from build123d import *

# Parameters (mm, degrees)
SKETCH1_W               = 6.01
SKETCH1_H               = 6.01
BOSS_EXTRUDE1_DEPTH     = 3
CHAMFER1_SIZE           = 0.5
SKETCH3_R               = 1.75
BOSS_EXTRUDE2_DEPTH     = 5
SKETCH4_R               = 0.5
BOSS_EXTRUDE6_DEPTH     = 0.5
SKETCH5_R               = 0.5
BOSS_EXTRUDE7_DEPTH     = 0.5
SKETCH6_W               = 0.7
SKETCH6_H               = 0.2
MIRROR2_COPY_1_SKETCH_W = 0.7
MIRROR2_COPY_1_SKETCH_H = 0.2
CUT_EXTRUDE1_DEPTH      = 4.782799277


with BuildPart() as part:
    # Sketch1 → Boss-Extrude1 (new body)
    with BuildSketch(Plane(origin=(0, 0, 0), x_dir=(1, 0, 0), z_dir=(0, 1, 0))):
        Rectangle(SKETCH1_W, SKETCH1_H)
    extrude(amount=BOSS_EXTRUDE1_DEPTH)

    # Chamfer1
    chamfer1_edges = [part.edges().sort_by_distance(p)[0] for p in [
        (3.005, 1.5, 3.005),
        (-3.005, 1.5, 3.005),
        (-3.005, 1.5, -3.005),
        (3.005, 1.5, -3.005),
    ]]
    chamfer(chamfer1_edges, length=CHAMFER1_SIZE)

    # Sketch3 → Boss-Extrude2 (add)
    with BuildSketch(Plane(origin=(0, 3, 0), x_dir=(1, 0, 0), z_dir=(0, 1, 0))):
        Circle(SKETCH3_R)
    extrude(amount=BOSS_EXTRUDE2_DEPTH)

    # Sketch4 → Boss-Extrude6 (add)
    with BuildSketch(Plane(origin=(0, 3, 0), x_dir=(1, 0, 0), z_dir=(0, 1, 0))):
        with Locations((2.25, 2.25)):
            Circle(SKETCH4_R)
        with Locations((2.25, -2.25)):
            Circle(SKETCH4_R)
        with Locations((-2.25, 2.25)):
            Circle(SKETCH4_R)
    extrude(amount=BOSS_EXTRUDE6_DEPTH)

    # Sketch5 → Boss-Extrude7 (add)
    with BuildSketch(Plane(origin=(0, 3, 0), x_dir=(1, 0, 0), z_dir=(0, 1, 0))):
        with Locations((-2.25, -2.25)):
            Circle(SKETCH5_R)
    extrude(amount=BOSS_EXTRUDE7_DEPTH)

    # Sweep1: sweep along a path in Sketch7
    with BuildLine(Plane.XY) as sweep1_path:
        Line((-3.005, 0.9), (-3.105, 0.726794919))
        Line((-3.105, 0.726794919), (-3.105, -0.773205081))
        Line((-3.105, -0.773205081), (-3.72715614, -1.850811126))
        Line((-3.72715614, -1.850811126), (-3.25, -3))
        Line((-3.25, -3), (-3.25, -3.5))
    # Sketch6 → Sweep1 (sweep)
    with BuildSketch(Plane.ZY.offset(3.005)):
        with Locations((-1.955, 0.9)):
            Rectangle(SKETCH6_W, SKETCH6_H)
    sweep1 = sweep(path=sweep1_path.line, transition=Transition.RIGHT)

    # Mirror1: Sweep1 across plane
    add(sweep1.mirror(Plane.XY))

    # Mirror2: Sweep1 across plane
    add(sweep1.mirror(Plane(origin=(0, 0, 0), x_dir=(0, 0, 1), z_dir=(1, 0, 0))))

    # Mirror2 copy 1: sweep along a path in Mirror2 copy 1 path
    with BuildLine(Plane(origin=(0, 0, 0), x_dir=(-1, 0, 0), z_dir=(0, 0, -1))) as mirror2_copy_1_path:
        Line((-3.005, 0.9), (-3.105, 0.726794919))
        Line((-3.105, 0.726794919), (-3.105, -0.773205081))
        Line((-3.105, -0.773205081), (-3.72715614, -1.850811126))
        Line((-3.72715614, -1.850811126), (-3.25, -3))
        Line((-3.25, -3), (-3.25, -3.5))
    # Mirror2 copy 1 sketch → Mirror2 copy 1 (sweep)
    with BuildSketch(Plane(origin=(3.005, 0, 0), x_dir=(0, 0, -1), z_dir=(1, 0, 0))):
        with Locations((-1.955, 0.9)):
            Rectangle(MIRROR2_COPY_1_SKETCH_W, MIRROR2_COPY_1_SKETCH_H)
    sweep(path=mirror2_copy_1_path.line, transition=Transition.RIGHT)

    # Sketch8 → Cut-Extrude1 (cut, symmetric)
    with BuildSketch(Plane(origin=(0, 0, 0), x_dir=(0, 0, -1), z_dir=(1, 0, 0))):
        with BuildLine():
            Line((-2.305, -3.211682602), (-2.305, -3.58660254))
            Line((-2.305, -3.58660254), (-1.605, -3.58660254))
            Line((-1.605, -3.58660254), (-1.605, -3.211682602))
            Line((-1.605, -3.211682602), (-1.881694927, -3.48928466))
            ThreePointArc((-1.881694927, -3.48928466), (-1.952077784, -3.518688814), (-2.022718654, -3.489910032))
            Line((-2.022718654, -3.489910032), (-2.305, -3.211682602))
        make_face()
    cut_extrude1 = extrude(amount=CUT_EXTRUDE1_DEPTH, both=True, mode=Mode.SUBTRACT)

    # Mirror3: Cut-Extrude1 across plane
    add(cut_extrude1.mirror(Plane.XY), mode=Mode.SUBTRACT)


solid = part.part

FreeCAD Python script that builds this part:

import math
import FreeCAD as App
import Part
import Sketcher
Q = App.Units.Quantity


def edges_at(feature, points):
    """Names of the edges that pass closest to the given points."""
    edges = feature.Shape.Edges
    near = lambda p: min(range(len(edges)), key=lambda i: edges[i].distToShape(Part.Vertex(*p))[0])
    return sorted({f"Edge{near(p) + 1}" for p in points})

doc = App.newDocument("Part")
body = doc.addObject("PartDesign::Body", "Body")

# Sketch on XZ plane
sketch1 = body.newObject("Sketcher::SketchObject", "Sketch")
sketch1.AttachmentSupport = (doc.getObject("XZ_Plane"), [""])
sketch1.MapMode = "FlatFace"
sketch1.addGeometry(Part.LineSegment(App.Vector(-3.005, -3.005, 0), App.Vector(-3.005, 3.005, 0)), False)
sketch1.addGeometry(Part.LineSegment(App.Vector(-3.005, 3.005, 0), App.Vector(3.005, 3.005, 0)), False)
sketch1.addGeometry(Part.LineSegment(App.Vector(3.005, 3.005, 0), App.Vector(3.005, -3.005, 0)), False)
sketch1.addGeometry(Part.LineSegment(App.Vector(3.005, -3.005, 0), App.Vector(-3.005, -3.005, 0)), False)
sketch1.addConstraint(Sketcher.Constraint("Coincident", 0, 2, 1, 1))
sketch1.addConstraint(Sketcher.Constraint("Coincident", 1, 2, 2, 1))
sketch1.addConstraint(Sketcher.Constraint("Coincident", 2, 2, 3, 1))
sketch1.addConstraint(Sketcher.Constraint("Coincident", 3, 2, 0, 1))
sketch1.addConstraint(Sketcher.Constraint("Vertical", 0))
sketch1.addConstraint(Sketcher.Constraint("Horizontal", 1))
sketch1.addConstraint(Sketcher.Constraint("Vertical", 2))
sketch1.addConstraint(Sketcher.Constraint("Horizontal", 3))
sketch1.addConstraint(Sketcher.Constraint("Symmetric", 0, 2, 2, 2, -1, 1))
sketch1.addConstraint(Sketcher.Constraint("Equal", 3, 0))
sketch1.addConstraint(Sketcher.Constraint("DistanceX", 1, 1, 1, 2, 6.01))
pad1 = body.newObject("PartDesign::Pad", "Pad")
pad1.Profile = sketch1
pad1.Length = 3
pad1.Reversed = True
doc.recompute()

chamfer = body.newObject("PartDesign::Chamfer", "Chamfer")
chamfer.Base = (pad1, edges_at(pad1, [
    (3.005, 1.5, 3.005),
    (-3.005, 1.5, 3.005),
    (-3.005, 1.5, -3.005),
    (3.005, 1.5, -3.005),
]))
chamfer.Size = 0.5

# Sketch on XZ plane
sketch2 = body.newObject("Sketcher::SketchObject", "Sketch001")
sketch2.AttachmentSupport = (doc.getObject("XZ_Plane"), [""])
sketch2.MapMode = "FlatFace"
sketch2.AttachmentOffset = App.Placement(App.Vector(0, 0, -3), App.Rotation())
sketch2.addGeometry(Part.Circle(App.Vector(0, 0, 0), App.Vector(0, 0, 1), 1.75), False)
sketch2.addConstraint(Sketcher.Constraint("Coincident", 0, 3, -1, 1))
sketch2.addConstraint(Sketcher.Constraint("Diameter", 0, 3.5))
pad2 = body.newObject("PartDesign::Pad", "Pad001")
pad2.Profile = sketch2
pad2.Length = 5
pad2.Reversed = True

# Sketch on XZ plane
sketch3 = body.newObject("Sketcher::SketchObject", "Sketch002")
sketch3.AttachmentSupport = (doc.getObject("XZ_Plane"), [""])
sketch3.MapMode = "FlatFace"
sketch3.AttachmentOffset = App.Placement(App.Vector(0, 0, -3), App.Rotation())
sketch3.addGeometry(Part.Circle(App.Vector(2.25, -2.25, 0), App.Vector(0, 0, 1), 0.5), False)
sketch3.addGeometry(Part.Circle(App.Vector(2.25, 2.25, 0), App.Vector(0, 0, 1), 0.5), False)
sketch3.addGeometry(Part.Circle(App.Vector(-2.25, -2.25, 0), App.Vector(0, 0, 1), 0.5), False)
sketch3.addConstraint(Sketcher.Constraint("Equal", 0, 1))
sketch3.addConstraint(Sketcher.Constraint("Equal", 1, 2))
sketch3.addConstraint(Sketcher.Constraint("Symmetric", 1, 3, 2, 3, -1, 1))
sketch3.addConstraint(Sketcher.Constraint("Symmetric", 0, 3, 2, 3, -2))
sketch3.addConstraint(Sketcher.Constraint("Diameter", 0, 1.0))
sketch3.addConstraint(Sketcher.Constraint("DistanceY", 0, 3, 1, 3, 4.5))
sketch3.addConstraint(Sketcher.Constraint("DistanceX", 2, 3, 0, 3, 4.5))
pad3 = body.newObject("PartDesign::Pad", "Pad002")
pad3.Profile = sketch3
pad3.Length = 0.5
pad3.Reversed = True

# Sketch on XZ plane
sketch4 = body.newObject("Sketcher::SketchObject", "Sketch003")
sketch4.AttachmentSupport = (doc.getObject("XZ_Plane"), [""])
sketch4.MapMode = "FlatFace"
sketch4.AttachmentOffset = App.Placement(App.Vector(0, 0, -3), App.Rotation())
sketch4.addGeometry(Part.Circle(App.Vector(-2.25, 2.25, 0), App.Vector(0, 0, 1), 0.5), False)
sketch4.addConstraint(Sketcher.Constraint("Diameter", 0, 1.0))
sketch4.addConstraint(Sketcher.Constraint("DistanceX", 0, 3, -1, 1, 2.25))
sketch4.addConstraint(Sketcher.Constraint("DistanceY", -1, 1, 0, 3, 2.25))
pad4 = body.newObject("PartDesign::Pad", "Pad003")
pad4.Profile = sketch4
pad4.Length = 0.5
pad4.Reversed = True

# Sketch on YZ plane
sketch5 = body.newObject("Sketcher::SketchObject", "Sketch004")
sketch5.AttachmentSupport = (doc.getObject("YZ_Plane"), [""])
sketch5.MapMode = "FlatFace"
sketch5.AttachmentOffset = App.Placement(App.Vector(0, 0, -3.005), App.Rotation())
sketch5.addGeometry(Part.LineSegment(App.Vector(1, -2.305, 0), App.Vector(0.8, -2.305, 0)), False)
sketch5.addGeometry(Part.LineSegment(App.Vector(0.8, -2.305, 0), App.Vector(0.8, -1.605, 0)), False)
sketch5.addGeometry(Part.LineSegment(App.Vector(0.8, -1.605, 0), App.Vector(1, -1.605, 0)), False)
sketch5.addGeometry(Part.LineSegment(App.Vector(1, -1.605, 0), App.Vector(1, -2.305, 0)), False)
sketch5.addConstraint(Sketcher.Constraint("Coincident", 0, 2, 1, 1))
sketch5.addConstraint(Sketcher.Constraint("Coincident", 1, 2, 2, 1))
sketch5.addConstraint(Sketcher.Constraint("Coincident", 2, 2, 3, 1))
sketch5.addConstraint(Sketcher.Constraint("Coincident", 3, 2, 0, 1))
sketch5.addConstraint(Sketcher.Constraint("Horizontal", 0))
sketch5.addConstraint(Sketcher.Constraint("Vertical", 1))
sketch5.addConstraint(Sketcher.Constraint("Horizontal", 2))
sketch5.addConstraint(Sketcher.Constraint("Vertical", 3))
sketch5.addConstraint(Sketcher.Constraint("DistanceX", 0, 2, 0, 1, 0.2))
sketch5.addConstraint(Sketcher.Constraint("DistanceY", 1, 1, 1, 2, 0.7))
sketch5.addConstraint(Sketcher.Constraint("DistanceX", -1, 1, 2, 2, 1.0))
sketch5.addConstraint(Sketcher.Constraint("DistanceY", 0, 2, -1, 1, 2.305))

# Sketch on XY plane
sketch6 = body.newObject("Sketcher::SketchObject", "Sketch005")
sketch6.AttachmentSupport = (doc.getObject("XY_Plane"), [""])
sketch6.MapMode = "FlatFace"
sketch6.addGeometry(Part.LineSegment(App.Vector(-3.005, 0.9, 0), App.Vector(-3.105, 0.726795, 0)), False)
sketch6.addGeometry(Part.LineSegment(App.Vector(-3.105, 0.726795, 0), App.Vector(-3.105, -0.773205, 0)), False)
sketch6.addGeometry(Part.LineSegment(App.Vector(-3.105, -0.773205, 0), App.Vector(-3.727156, -1.850811, 0)), False)
sketch6.addGeometry(Part.LineSegment(App.Vector(-3.727156, -1.850811, 0), App.Vector(-3.25, -3, 0)), False)
sketch6.addGeometry(Part.LineSegment(App.Vector(-3.25, -3, 0), App.Vector(-3.25, -3.5, 0)), False)
sketch6.addConstraint(Sketcher.Constraint("Coincident", 0, 2, 1, 1))
sketch6.addConstraint(Sketcher.Constraint("Coincident", 1, 2, 2, 1))
sketch6.addConstraint(Sketcher.Constraint("Coincident", 2, 2, 3, 1))
sketch6.addConstraint(Sketcher.Constraint("Coincident", 3, 2, 4, 1))
sketch6.addConstraint(Sketcher.Constraint("Vertical", 1))
sketch6.addConstraint(Sketcher.Constraint("Vertical", 4))
sketch6.addConstraint(Sketcher.Constraint("Parallel", 0, 2))
sketch6.addConstraint(Sketcher.Constraint("Equal", 2, 3))
sketch6.addConstraint(Sketcher.Constraint("Angle", 0, Q("-120 deg")))
sketch6.addConstraint(Sketcher.Constraint("DistanceY", 1, 2, 1, 1, 1.5))
sketch6.addConstraint(Sketcher.Constraint("DistanceY", 4, 2, 4, 1, 0.5))
sketch6.addConstraint(Sketcher.Constraint("DistanceY", 3, 2, -1, 1, 3.0))
sketch6.addConstraint(Sketcher.Constraint("Distance", 0, 0.2))
sketch6.addConstraint(Sketcher.Constraint("DistanceY", -1, 1, 0, 1, 0.9))
sketch6.addConstraint(Sketcher.Constraint("DistanceX", 3, 2, -1, 1, 3.25))
sketch6.addConstraint(Sketcher.Constraint("DistanceX", 0, 1, -1, 1, 3.005))
doc.recompute()

additivepipe = body.newObject("PartDesign::AdditivePipe", "AdditivePipe")
additivepipe.Profile = sketch5
additivepipe.Spine = (sketch6, ["Edge1", "Edge2", "Edge3", "Edge4", "Edge5"])
additivepipe.Transition = "Right corner"
doc.recompute()

mirrored = body.newObject("PartDesign::Mirrored", "Mirrored")
mirrored.Originals = [additivepipe]
mirrored.MirrorPlane = (doc.getObject("XY_Plane"), [""])
body.Tip = mirrored
doc.recompute()

mirrored2 = body.newObject("PartDesign::Mirrored", "Mirrored001")
mirrored2.Originals = [additivepipe]
mirrored2.MirrorPlane = (doc.getObject("YZ_Plane"), [""])
body.Tip = mirrored2

# Sketch on YZ plane
sketch7 = body.newObject("Sketcher::SketchObject", "Sketch006")
sketch7.AttachmentSupport = (doc.getObject("YZ_Plane"), [""])
sketch7.MapMode = "FlatFace"
sketch7.AttachmentOffset = App.Placement(App.Vector(0, 0, 3.005), App.Rotation())
sketch7.addGeometry(Part.LineSegment(App.Vector(1, 2.305, 0), App.Vector(0.8, 2.305, 0)), False)
sketch7.addGeometry(Part.LineSegment(App.Vector(0.8, 2.305, 0), App.Vector(0.8, 1.605, 0)), False)
sketch7.addGeometry(Part.LineSegment(App.Vector(0.8, 1.605, 0), App.Vector(1, 1.605, 0)), False)
sketch7.addGeometry(Part.LineSegment(App.Vector(1, 1.605, 0), App.Vector(1, 2.305, 0)), False)
sketch7.addConstraint(Sketcher.Constraint("Coincident", 0, 2, 1, 1))
sketch7.addConstraint(Sketcher.Constraint("Coincident", 1, 2, 2, 1))
sketch7.addConstraint(Sketcher.Constraint("Coincident", 2, 2, 3, 1))
sketch7.addConstraint(Sketcher.Constraint("Coincident", 3, 2, 0, 1))
sketch7.addConstraint(Sketcher.Constraint("Horizontal", 0))
sketch7.addConstraint(Sketcher.Constraint("Vertical", 1))
sketch7.addConstraint(Sketcher.Constraint("Horizontal", 2))
sketch7.addConstraint(Sketcher.Constraint("Vertical", 3))
sketch7.addConstraint(Sketcher.Constraint("DistanceX", 0, 2, 0, 1, 0.2))
sketch7.addConstraint(Sketcher.Constraint("DistanceY", 1, 2, 1, 1, 0.7))
sketch7.addConstraint(Sketcher.Constraint("DistanceX", -1, 1, 2, 2, 1.0))
sketch7.addConstraint(Sketcher.Constraint("DistanceY", -1, 1, 0, 2, 2.305))

# Sketch on XY plane
sketch8 = body.newObject("Sketcher::SketchObject", "Sketch007")
sketch8.AttachmentSupport = (doc.getObject("XY_Plane"), [""])
sketch8.MapMode = "FlatFace"
sketch8.addGeometry(Part.LineSegment(App.Vector(3.005, 0.9, 0), App.Vector(3.105, 0.726795, 0)), False)
sketch8.addGeometry(Part.LineSegment(App.Vector(3.105, 0.726795, 0), App.Vector(3.105, -0.773205, 0)), False)
sketch8.addGeometry(Part.LineSegment(App.Vector(3.105, -0.773205, 0), App.Vector(3.727156, -1.850811, 0)), False)
sketch8.addGeometry(Part.LineSegment(App.Vector(3.727156, -1.850811, 0), App.Vector(3.25, -3, 0)), False)
sketch8.addGeometry(Part.LineSegment(App.Vector(3.25, -3, 0), App.Vector(3.25, -3.5, 0)), False)
sketch8.addConstraint(Sketcher.Constraint("Coincident", 0, 2, 1, 1))
sketch8.addConstraint(Sketcher.Constraint("Coincident", 1, 2, 2, 1))
sketch8.addConstraint(Sketcher.Constraint("Coincident", 2, 2, 3, 1))
sketch8.addConstraint(Sketcher.Constraint("Coincident", 3, 2, 4, 1))
sketch8.addConstraint(Sketcher.Constraint("Vertical", 1))
sketch8.addConstraint(Sketcher.Constraint("Vertical", 4))
sketch8.addConstraint(Sketcher.Constraint("Parallel", 0, 2))
sketch8.addConstraint(Sketcher.Constraint("Equal", 2, 3))
sketch8.addConstraint(Sketcher.Constraint("Angle", 0, Q("-60 deg")))
sketch8.addConstraint(Sketcher.Constraint("DistanceY", 1, 2, 1, 1, 1.5))
sketch8.addConstraint(Sketcher.Constraint("DistanceY", 4, 2, 4, 1, 0.5))
sketch8.addConstraint(Sketcher.Constraint("DistanceY", 3, 2, -1, 1, 3.0))
sketch8.addConstraint(Sketcher.Constraint("Distance", 0, 0.2))
sketch8.addConstraint(Sketcher.Constraint("DistanceY", -1, 1, 0, 1, 0.9))
sketch8.addConstraint(Sketcher.Constraint("DistanceX", -1, 1, 3, 2, 3.25))
sketch8.addConstraint(Sketcher.Constraint("DistanceX", -1, 1, 0, 1, 3.005))
doc.recompute()

additivepipe2 = body.newObject("PartDesign::AdditivePipe", "AdditivePipe001")
additivepipe2.Profile = sketch7
additivepipe2.Spine = (sketch8, ["Edge1", "Edge2", "Edge3", "Edge4", "Edge5"])
additivepipe2.Transition = "Right corner"

# Sketch on YZ plane
sketch9 = body.newObject("Sketcher::SketchObject", "Sketch008")
sketch9.AttachmentSupport = (doc.getObject("YZ_Plane"), [""])
sketch9.MapMode = "FlatFace"
sketch9.addGeometry(Part.LineSegment(App.Vector(-3.211683, 2.305, 0), App.Vector(-3.586603, 2.305, 0)), False)
sketch9.addGeometry(Part.LineSegment(App.Vector(-3.586603, 2.305, 0), App.Vector(-3.586603, 1.605, 0)), False)
sketch9.addGeometry(Part.LineSegment(App.Vector(-3.586603, 1.605, 0), App.Vector(-3.211683, 1.605, 0)), False)
sketch9.addGeometry(Part.LineSegment(App.Vector(-3.211683, 1.605, 0), App.Vector(-3.489285, 1.881695, 0)), False)
sketch9.addGeometry(Part.ArcOfCircle(Part.Circle(App.Vector(-3.41869, 1.952521, 0), App.Vector(0, 0, 1), 0.1), math.radians(135.414388), math.radians(225.093767)), False)
sketch9.addGeometry(Part.LineSegment(App.Vector(-3.48991, 2.022719, 0), App.Vector(-3.211683, 2.305, 0)), False)
sketch9.addConstraint(Sketcher.Constraint("Coincident", 0, 2, 1, 1))
sketch9.addConstraint(Sketcher.Constraint("Coincident", 1, 2, 2, 1))
sketch9.addConstraint(Sketcher.Constraint("Coincident", 2, 2, 3, 1))
sketch9.addConstraint(Sketcher.Constraint("Tangent", 3, 2, 4, 2))
sketch9.addConstraint(Sketcher.Constraint("Tangent", 4, 1, 5, 1))
sketch9.addConstraint(Sketcher.Constraint("Coincident", 5, 2, 0, 1))
sketch9.addConstraint(Sketcher.Constraint("Horizontal", 0))
sketch9.addConstraint(Sketcher.Constraint("Vertical", 1))
sketch9.addConstraint(Sketcher.Constraint("Horizontal", 2))
sketch9.addConstraint(Sketcher.Constraint("Vertical", 2, 2, 5, 2))
sketch9.addConstraint(Sketcher.Constraint("Radius", 4, 0.1))
sketch9.addConstraint(Sketcher.Constraint("DistanceY", 1, 2, 1, 1, 0.7))
sketch9.addConstraint(Sketcher.Constraint("DistanceY", -1, 1, 0, 2, 2.305))
sketch9.addConstraint(Sketcher.Constraint("DistanceX", 0, 2, 0, 1, 0.37492))
sketch9.addConstraint(Sketcher.Constraint("Distance", 5, 0.39635))
sketch9.addConstraint(Sketcher.Constraint("DistanceX", 4, 3, -1, 1, 3.41869))
sketch9.addConstraint(Sketcher.Constraint("DistanceY", -1, 1, 4, 3, 1.952521))
pocket1 = body.newObject("PartDesign::Pocket", "Pocket")
pocket1.Profile = sketch9
pocket1.Length = 9.565599
pocket1.Midplane = True
doc.recompute()

mirrored3 = body.newObject("PartDesign::Mirrored", "Mirrored002")
mirrored3.Originals = [pocket1]
mirrored3.MirrorPlane = (doc.getObject("XY_Plane"), [""])
body.Tip = mirrored3

doc.recompute()
